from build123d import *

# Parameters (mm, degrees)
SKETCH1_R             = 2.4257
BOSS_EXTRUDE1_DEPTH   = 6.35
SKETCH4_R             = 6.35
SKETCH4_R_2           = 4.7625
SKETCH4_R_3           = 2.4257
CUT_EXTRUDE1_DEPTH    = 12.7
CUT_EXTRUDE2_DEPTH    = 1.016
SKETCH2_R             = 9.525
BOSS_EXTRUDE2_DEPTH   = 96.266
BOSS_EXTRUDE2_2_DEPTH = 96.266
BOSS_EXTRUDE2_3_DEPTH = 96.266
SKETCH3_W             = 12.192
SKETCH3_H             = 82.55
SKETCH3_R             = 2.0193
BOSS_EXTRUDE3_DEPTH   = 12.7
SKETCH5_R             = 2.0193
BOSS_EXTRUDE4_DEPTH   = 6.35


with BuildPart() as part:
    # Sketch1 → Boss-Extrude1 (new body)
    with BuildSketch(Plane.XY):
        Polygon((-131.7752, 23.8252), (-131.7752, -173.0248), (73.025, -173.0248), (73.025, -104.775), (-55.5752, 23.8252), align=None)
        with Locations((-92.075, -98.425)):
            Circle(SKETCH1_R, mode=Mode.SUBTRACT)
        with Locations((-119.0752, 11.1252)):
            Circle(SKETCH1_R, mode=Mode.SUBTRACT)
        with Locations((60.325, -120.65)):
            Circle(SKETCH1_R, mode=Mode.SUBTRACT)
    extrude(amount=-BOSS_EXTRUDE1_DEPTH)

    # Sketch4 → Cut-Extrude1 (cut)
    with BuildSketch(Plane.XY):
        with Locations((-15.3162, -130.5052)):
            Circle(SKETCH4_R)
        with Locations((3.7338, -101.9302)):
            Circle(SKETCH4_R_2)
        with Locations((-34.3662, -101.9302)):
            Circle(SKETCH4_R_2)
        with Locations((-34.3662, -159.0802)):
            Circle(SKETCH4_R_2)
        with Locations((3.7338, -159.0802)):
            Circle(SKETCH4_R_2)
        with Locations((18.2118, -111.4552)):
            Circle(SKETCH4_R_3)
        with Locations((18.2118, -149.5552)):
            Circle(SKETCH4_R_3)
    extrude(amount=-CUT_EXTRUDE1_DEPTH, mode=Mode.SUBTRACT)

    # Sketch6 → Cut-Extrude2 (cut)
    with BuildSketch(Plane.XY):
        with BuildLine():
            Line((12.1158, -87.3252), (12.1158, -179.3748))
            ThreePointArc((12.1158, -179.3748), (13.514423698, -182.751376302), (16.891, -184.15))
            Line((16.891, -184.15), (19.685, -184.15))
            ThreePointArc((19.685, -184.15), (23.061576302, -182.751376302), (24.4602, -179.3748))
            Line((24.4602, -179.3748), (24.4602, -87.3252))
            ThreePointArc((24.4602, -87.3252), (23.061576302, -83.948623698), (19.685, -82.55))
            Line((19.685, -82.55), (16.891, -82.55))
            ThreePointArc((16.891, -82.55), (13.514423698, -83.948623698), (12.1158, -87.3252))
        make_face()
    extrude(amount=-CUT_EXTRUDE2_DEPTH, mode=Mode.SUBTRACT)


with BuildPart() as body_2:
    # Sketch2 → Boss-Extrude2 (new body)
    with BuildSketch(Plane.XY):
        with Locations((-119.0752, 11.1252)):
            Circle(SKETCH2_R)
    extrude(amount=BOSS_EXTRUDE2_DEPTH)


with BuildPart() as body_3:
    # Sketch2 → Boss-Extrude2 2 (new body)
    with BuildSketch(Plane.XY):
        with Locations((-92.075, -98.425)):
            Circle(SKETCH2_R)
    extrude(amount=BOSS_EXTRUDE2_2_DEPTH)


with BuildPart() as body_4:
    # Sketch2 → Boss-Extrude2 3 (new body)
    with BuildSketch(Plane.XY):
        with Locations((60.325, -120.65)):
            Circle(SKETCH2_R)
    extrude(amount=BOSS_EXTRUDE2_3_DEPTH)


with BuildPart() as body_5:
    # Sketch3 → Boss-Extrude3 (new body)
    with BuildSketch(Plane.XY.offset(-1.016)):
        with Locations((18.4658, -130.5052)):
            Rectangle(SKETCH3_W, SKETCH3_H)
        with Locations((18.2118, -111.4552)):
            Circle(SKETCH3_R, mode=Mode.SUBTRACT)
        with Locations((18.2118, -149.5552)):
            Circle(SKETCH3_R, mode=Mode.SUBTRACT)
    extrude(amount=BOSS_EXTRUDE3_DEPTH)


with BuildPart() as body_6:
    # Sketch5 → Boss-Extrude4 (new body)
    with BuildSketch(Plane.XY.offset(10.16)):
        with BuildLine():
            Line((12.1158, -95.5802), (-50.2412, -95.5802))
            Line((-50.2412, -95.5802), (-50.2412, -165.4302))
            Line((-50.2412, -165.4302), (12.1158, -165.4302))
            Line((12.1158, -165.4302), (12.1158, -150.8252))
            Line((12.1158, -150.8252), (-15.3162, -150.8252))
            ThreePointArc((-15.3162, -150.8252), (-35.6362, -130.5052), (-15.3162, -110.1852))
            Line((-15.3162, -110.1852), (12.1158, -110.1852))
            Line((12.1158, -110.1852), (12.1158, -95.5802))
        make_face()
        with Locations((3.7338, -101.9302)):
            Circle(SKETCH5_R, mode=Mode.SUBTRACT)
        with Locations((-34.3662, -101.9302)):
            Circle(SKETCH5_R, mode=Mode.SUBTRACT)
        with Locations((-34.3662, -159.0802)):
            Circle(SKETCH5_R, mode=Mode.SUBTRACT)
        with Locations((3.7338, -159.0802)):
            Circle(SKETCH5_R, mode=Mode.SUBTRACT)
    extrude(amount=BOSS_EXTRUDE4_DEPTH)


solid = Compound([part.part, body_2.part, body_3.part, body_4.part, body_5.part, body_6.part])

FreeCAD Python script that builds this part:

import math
import FreeCAD as App
import Part
import Sketcher
from FreeCAD import Vector
Q = App.Units.Quantity

doc = App.newDocument("Part")
body = doc.addObject("PartDesign::Body", "Body")

# Sketch on XY plane
sketch1 = body.newObject("Sketcher::SketchObject", "Sketch")
sketch1.AttachmentSupport = (doc.getObject("XY_Plane"), [""])
sketch1.MapMode = "FlatFace"
sketch1.addGeometry(Part.LineSegment(Vector(-131.8, 23.8, 0), Vector(-131.8, -173, 0)), False)
sketch1.addGeometry(Part.LineSegment(Vector(-131.8, -173, 0), Vector(73, -173, 0)), False)
sketch1.addGeometry(Part.LineSegment(Vector(73, -173, 0), Vector(73, -104.8, 0)), False)
sketch1.addGeometry(Part.LineSegment(Vector(73, -104.8, 0), Vector(-55.6, 23.8, 0)), False)
sketch1.addGeometry(Part.LineSegment(Vector(-55.6, 23.8, 0), Vector(-131.8, 23.8, 0)), False)
sketch1.addGeometry(Part.Circle(Vector(-92.1, -98.4, 0), Vector(0, 0, 1), 2.4), False)
sketch1.addGeometry(Part.Circle(Vector(60.3, -120.7, 0), Vector(0, 0, 1), 2.4), False)
sketch1.addGeometry(Part.Circle(Vector(-119.1, 11.1, 0), Vector(0, 0, 1), 2.4), False)
sketch1.addConstraint(Sketcher.Constraint("Coincident", 0, 2, 1, 1))
sketch1.addConstraint(Sketcher.Constraint("Coincident", 1, 2, 2, 1))
sketch1.addConstraint(Sketcher.Constraint("Coincident", 2, 2, 3, 1))
sketch1.addConstraint(Sketcher.Constraint("Coincident", 3, 2, 4, 1))
sketch1.addConstraint(Sketcher.Constraint("Coincident", 4, 2, 0, 1))
sketch1.addConstraint(Sketcher.Constraint("Vertical", 0))
sketch1.addConstraint(Sketcher.Constraint("Horizontal", 1))
sketch1.addConstraint(Sketcher.Constraint("Vertical", 2))
sketch1.addConstraint(Sketcher.Constraint("Horizontal", 4))
sketch1.addConstraint(Sketcher.Constraint("Equal", 5, 6))
sketch1.addConstraint(Sketcher.Constraint("Equal", 6, 7))
sketch1.addConstraint(Sketcher.Constraint("DistanceX", 4, 2, 4, 1, Q("3 in")))
sketch1.addConstraint(Sketcher.Constraint("Diameter", 5, Q("0.191 in")))
sketch1.addConstraint(Sketcher.Constraint("Angle", 3, Q("135 deg")))
sketch1.addConstraint(Sketcher.Constraint("DistanceX", 5, 3, 6, 3, Q("6 in")))
sketch1.addConstraint(Sketcher.Constraint("DistanceY", 0, 2, 0, 1, Q("7.75 in")))
sketch1.addConstraint(Sketcher.Constraint("DistanceX", 0, 2, 7, 3, Q("0.5 in")))
sketch1.addConstraint(Sketcher.Constraint("DistanceX", 6, 3, 1, 2, Q("0.5 in")))
sketch1.addConstraint(Sketcher.Constraint("DistanceY", 7, 3, 3, 2, Q("0.5 in")))
sketch1.addConstraint(Sketcher.Constraint("DistanceX", 1, 1, 1, 2, Q("8.063 in")))
sketch1.addConstraint(Sketcher.Constraint("DistanceY", 6, 3, -1, 1, Q("4.75 in")))
sketch1.addConstraint(Sketcher.Constraint("DistanceY", 2, 2, 5, 3, Q("0.25 in")))
sketch1.addConstraint(Sketcher.Constraint("DistanceX", 5, 3, -1, 1, Q("3.625 in")))
sketch1.addConstraint(Sketcher.Constraint("DistanceY", 5, 3, -1, 1, Q("3.875 in")))
pad1 = body.newObject("PartDesign::Pad", "Pad")
pad1.Profile = sketch1
pad1.Length = Q("0.25 in")
pad1.Reversed = True

# Sketch on XY plane
sketch2 = body.newObject("Sketcher::SketchObject", "Sketch001")
sketch2.AttachmentSupport = (doc.getObject("XY_Plane"), [""])
sketch2.MapMode = "FlatFace"
sketch2.addGeometry(Part.Circle(Vector(-15.3, -130.5, 0), Vector(0, 0, 1), 6.3), False)
sketch2.addGeometry(Part.Circle(Vector(3.7, -101.9, 0), Vector(0, 0, 1), 4.8), False)
sketch2.addGeometry(Part.Circle(Vector(-34.4, -101.9, 0), Vector(0, 0, 1), 4.8), False)
sketch2.addGeometry(Part.Circle(Vector(-34.4, -159.1, 0), Vector(0, 0, 1), 4.8), False)
sketch2.addGeometry(Part.Circle(Vector(3.7, -159.1, 0), Vector(0, 0, 1), 4.8), False)
sketch2.addGeometry(Part.Circle(Vector(18.2, -111.5, 0), Vector(0, 0, 1), 2.4), False)
sketch2.addGeometry(Part.Circle(Vector(18.2, -149.6, 0), Vector(0, 0, 1), 2.4), False)
sketch2.addConstraint(Sketcher.Constraint("Equal", 1, 2))
sketch2.addConstraint(Sketcher.Constraint("Equal", 2, 3))
sketch2.addConstraint(Sketcher.Constraint("Equal", 3, 4))
sketch2.addConstraint(Sketcher.Constraint("Equal", 5, 6))
sketch2.addConstraint(Sketcher.Constraint("Horizontal", 1, 3, 2, 3))
sketch2.addConstraint(Sketcher.Constraint("Horizontal", 3, 3, 4, 3))
sketch2.addConstraint(Sketcher.Constraint("Vertical", 2, 3, 3, 3))
sketch2.addConstraint(Sketcher.Constraint("Vertical", 1, 3, 4, 3))
sketch2.addConstraint(Sketcher.Constraint("Vertical", 5, 3, 6, 3))
sketch2.addConstraint(Sketcher.Constraint("Diameter", 0, Q("0.5 in")))
sketch2.addConstraint(Sketcher.Constraint("Diameter", 1, Q("0.375 in")))
sketch2.addConstraint(Sketcher.Constraint("Diameter", 5, Q("0.191 in")))
sketch2.addConstraint(Sketcher.Constraint("DistanceX", 2, 3, 1, 3, Q("1.5 in")))
sketch2.addConstraint(Sketcher.Constraint("DistanceY", 6, 3, 5, 3, Q("1.5 in")))
sketch2.addConstraint(Sketcher.Constraint("DistanceX", 0, 3, 1, 3, Q("0.75 in")))
sketch2.addConstraint(Sketcher.Constraint("DistanceY", 3, 3, 2, 3, Q("2.25 in")))
sketch2.addConstraint(Sketcher.Constraint("DistanceX", 1, 3, 5, 3, Q("0.57 in")))
sketch2.addConstraint(Sketcher.Constraint("DistanceY", 0, 3, 5, 3, Q("0.75 in")))
sketch2.addConstraint(Sketcher.Constraint("DistanceX", 0, 3, -1, 1, Q("0.603 in")))
sketch2.addConstraint(Sketcher.Constraint("DistanceY", 0, 3, -1, 1, Q("5.138 in")))
sketch2.addConstraint(Sketcher.Constraint("DistanceY", 1, 3, -1, 1, Q("4.013 in")))
pocket1 = body.newObject("PartDesign::Pocket", "Pocket")
pocket1.Profile = sketch2
pocket1.Length = Q("0.5 in")

# Sketch on XY plane
sketch3 = body.newObject("Sketcher::SketchObject", "Sketch002")
sketch3.AttachmentSupport = (doc.getObject("XY_Plane"), [""])
sketch3.MapMode = "FlatFace"
sketch3.addGeometry(Part.LineSegment(Vector(12.1, -87.3, 0), Vector(12.1, -179.4, 0)), False)
sketch3.addGeometry(Part.ArcOfCircle(Part.Circle(Vector(16.9, -179.4, 0), Vector(0, 0, 1), 4.8), math.radians(180), math.radians(270)), False)
sketch3.addGeometry(Part.LineSegment(Vector(16.9, -184.2, 0), Vector(19.7, -184.2, 0)), False)
sketch3.addGeometry(Part.ArcOfCircle(Part.Circle(Vector(19.7, -179.4, 0), Vector(0, 0, 1), 4.8), math.radians(-90), math.radians(0)), False)
sketch3.addGeometry(Part.LineSegment(Vector(24.5, -179.4, 0), Vector(24.5, -87.3, 0)), False)
sketch3.addGeometry(Part.ArcOfCircle(Part.Circle(Vector(19.7, -87.3, 0), Vector(0, 0, 1), 4.8), math.radians(0), math.radians(90)), False)
sketch3.addGeometry(Part.LineSegment(Vector(19.7, -82.5, 0), Vector(16.9, -82.5, 0)), False)
sketch3.addGeometry(Part.ArcOfCircle(Part.Circle(Vector(16.9, -87.3, 0), Vector(0, 0, 1), 4.8), math.radians(90), math.radians(180)), False)
sketch3.addConstraint(Sketcher.Constraint("Tangent", 0, 2, 1, 1))
sketch3.addConstraint(Sketcher.Constraint("Tangent", 1, 2, 2, 1))
sketch3.addConstraint(Sketcher.Constraint("Tangent", 2, 2, 3, 1))
sketch3.addConstraint(Sketcher.Constraint("Tangent", 3, 2, 4, 1))
sketch3.addConstraint(Sketcher.Constraint("Tangent", 4, 2, 5, 1))
sketch3.addConstraint(Sketcher.Constraint("Tangent", 5, 2, 6, 1))
sketch3.addConstraint(Sketcher.Constraint("Tangent", 6, 2, 7, 1))
sketch3.addConstraint(Sketcher.Constraint("Tangent", 7, 2, 0, 1))
sketch3.addConstraint(Sketcher.Constraint("Vertical", 0))
sketch3.addConstraint(Sketcher.Constraint("Horizontal", 2))
sketch3.addConstraint(Sketcher.Constraint("Vertical", 4))
sketch3.addConstraint(Sketcher.Constraint("Horizontal", 6))
sketch3.addConstraint(Sketcher.Constraint("Equal", 1, 3))
sketch3.addConstraint(Sketcher.Constraint("Equal", 3, 5))
sketch3.addConstraint(Sketcher.Constraint("Equal", 5, 7))
sketch3.addConstraint(Sketcher.Constraint("Radius", 1, Q("0.188 in")))
sketch3.addConstraint(Sketcher.Constraint("DistanceX", 2, 1, 2, 2, Q("0.11 in")))
sketch3.addConstraint(Sketcher.Constraint("DistanceY", 0, 2, 0, 1, Q("3.624 in")))
sketch3.addConstraint(Sketcher.Constraint("DistanceY", 1, 2, -1, 1, Q("7.25 in")))
sketch3.addConstraint(Sketcher.Constraint("DistanceX", -1, 1, 1, 3, Q("0.665 in")))
pocket2 = body.newObject("PartDesign::Pocket", "Pocket001")
pocket2.Profile = sketch3
pocket2.Length = Q("0.04 in")
body2 = doc.addObject("PartDesign::Body", "Body001")

# Sketch on XY plane
sketch4 = body2.newObject("Sketcher::SketchObject", "Sketch003")
sketch4.AttachmentSupport = (doc.getObject("XY_Plane001"), [""])
sketch4.MapMode = "FlatFace"
sketch4.addGeometry(Part.Circle(Vector(-119, 11, 0), Vector(0, 0, 1), 10), False)
sketch4.addConstraint(Sketcher.Constraint("Diameter", 0, Q("0.75 in")))
sketch4.addConstraint(Sketcher.Constraint("DistanceX", 0, 3, -1, 1, Q("4.688 in")))
sketch4.addConstraint(Sketcher.Constraint("DistanceY", -1, 1, 0, 3, Q("0.438 in")))
pad2 = body2.newObject("PartDesign::Pad", "Pad001")
pad2.Profile = sketch4
pad2.Length = Q("3.79 in")
body3 = doc.addObject("PartDesign::Body", "Body002")

# Sketch on XY plane
sketch5 = body3.newObject("Sketcher::SketchObject", "Sketch004")
sketch5.AttachmentSupport = (doc.getObject("XY_Plane002"), [""])
sketch5.MapMode = "FlatFace"
sketch5.addGeometry(Part.Circle(Vector(-92, -98, 0), Vector(0, 0, 1), 10), False)
sketch5.addConstraint(Sketcher.Constraint("Diameter", 0, Q("0.75 in")))
sketch5.addConstraint(Sketcher.Constraint("DistanceX", 0, 3, -1, 1, Q("3.625 in")))
sketch5.addConstraint(Sketcher.Constraint("DistanceY", 0, 3, -1, 1, Q("3.875 in")))
pad3 = body3.newObject("PartDesign::Pad", "Pad002")
pad3.Profile = sketch5
pad3.Length = Q("3.79 in")
body4 = doc.addObject("PartDesign::Body", "Body003")

# Sketch on XY plane
sketch6 = body4.newObject("Sketcher::SketchObject", "Sketch005")
sketch6.AttachmentSupport = (doc.getObject("XY_Plane003"), [""])
sketch6.MapMode = "FlatFace"
sketch6.addGeometry(Part.Circle(Vector(60, -121, 0), Vector(0, 0, 1), 10), False)
sketch6.addConstraint(Sketcher.Constraint("Diameter", 0, Q("0.75 in")))
sketch6.addConstraint(Sketcher.Constraint("DistanceY", 0, 3, -1, 1, Q("4.75 in")))
sketch6.addConstraint(Sketcher.Constraint("DistanceX", -1, 1, 0, 3, Q("2.375 in")))
pad4 = body4.newObject("PartDesign::Pad", "Pad003")
pad4.Profile = sketch6
pad4.Length = Q("3.79 in")
body5 = doc.addObject("PartDesign::Body", "Body004")

# Sketch on XY plane
sketch7 = body5.newObject("Sketcher::SketchObject", "Sketch006")
sketch7.AttachmentSupport = (doc.getObject("XY_Plane004"), [""])
sketch7.MapMode = "FlatFace"
sketch7.AttachmentOffset = App.Placement(Vector(0, 0, -0.04 * 25.4), App.Rotation())
sketch7.addGeometry(Part.LineSegment(Vector(12.4, -89.2, 0), Vector(12.4, -171.8, 0)), False)
sketch7.addGeometry(Part.LineSegment(Vector(12.4, -171.8, 0), Vector(24.6, -171.8, 0)), False)
sketch7.addGeometry(Part.LineSegment(Vector(24.6, -171.8, 0), Vector(24.6, -89.2, 0)), False)
sketch7.addGeometry(Part.LineSegment(Vector(24.6, -89.2, 0), Vector(12.4, -89.2, 0)), False)
sketch7.addGeometry(Part.Circle(Vector(18.2, -149.6, 0), Vector(0, 0, 1), 2), False)
sketch7.addGeometry(Part.Circle(Vector(18.2, -111.5, 0), Vector(0, 0, 1), 2), False)
sketch7.addConstraint(Sketcher.Constraint("Coincident", 0, 2, 1, 1))
sketch7.addConstraint(Sketcher.Constraint("Coincident", 1, 2, 2, 1))
sketch7.addConstraint(Sketcher.Constraint("Coincident", 2, 2, 3, 1))
sketch7.addConstraint(Sketcher.Constraint("Coincident", 3, 2, 0, 1))
sketch7.addConstraint(Sketcher.Constraint("Vertical", 0))
sketch7.addConstraint(Sketcher.Constraint("Horizontal", 1))
sketch7.addConstraint(Sketcher.Constraint("Vertical", 2))
sketch7.addConstraint(Sketcher.Constraint("Horizontal", 3))
sketch7.addConstraint(Sketcher.Constraint("Equal", 4, 5))
sketch7.addConstraint(Sketcher.Constraint("Vertical", 4, 3, 5, 3))
sketch7.addConstraint(Sketcher.Constraint("Diameter", 4, Q("0.159 in")))
sketch7.addConstraint(Sketcher.Constraint("DistanceX", 1, 1, 1, 2, Q("0.48 in")))
sketch7.addConstraint(Sketcher.Constraint("DistanceY", 0, 2, 0, 1, Q("3.25 in")))
sketch7.addConstraint(Sketcher.Constraint("DistanceY", 4, 3, 5, 3, Q("1.5 in")))
sketch7.addConstraint(Sketcher.Constraint("DistanceX", 0, 2, 4, 3, Q("0.23 in")))
sketch7.addConstraint(Sketcher.Constraint("DistanceX", -1, 1, 4, 3, Q("0.717 in")))
sketch7.addConstraint(Sketcher.Constraint("DistanceY", 4, 3, -1, 1, Q("5.888 in")))
sketch7.addConstraint(Sketcher.Constraint("DistanceY", 0, 2, -1, 1, Q("6.763 in")))
pad5 = body5.newObject("PartDesign::Pad", "Pad004")
pad5.Profile = sketch7
pad5.Length = Q("0.5 in")
body6 = doc.addObject("PartDesign::Body", "Body005")

# Sketch on XY plane
sketch8 = body6.newObject("Sketcher::SketchObject", "Sketch007")
sketch8.AttachmentSupport = (doc.getObject("XY_Plane005"), [""])
sketch8.MapMode = "FlatFace"
sketch8.AttachmentOffset = App.Placement(Vector(0, 0, 0.4 * 25.4), App.Rotation())
sketch8.addGeometry(Part.LineSegment(Vector(12.1, -95.6, 0), Vector(-50.2, -95.6, 0)), False)
sketch8.addGeometry(Part.LineSegment(Vector(-50.2, -95.6, 0), Vector(-50.2, -165.4, 0)), False)
sketch8.addGeometry(Part.LineSegment(Vector(-50.2, -165.4, 0), Vector(12.1, -165.4, 0)), False)
sketch8.addGeometry(Part.LineSegment(Vector(12.1, -165.4, 0), Vector(12.1, -150.8, 0)), False)
sketch8.addGeometry(Part.LineSegment(Vector(12.1, -150.8, 0), Vector(-15.3, -150.8, 0)), False)
sketch8.addGeometry(Part.ArcOfCircle(Part.Circle(Vector(-15.3, -130.5, 0), Vector(0, 0, 1), 20.3), math.radians(90), math.radians(270)), False)
sketch8.addGeometry(Part.LineSegment(Vector(-15.3, -110.2, 0), Vector(12.1, -110.2, 0)), False)
sketch8.addGeometry(Part.LineSegment(Vector(12.1, -110.2, 0), Vector(12.1, -95.6, 0)), False)
sketch8.addGeometry(Part.Circle(Vector(-34.4, -159.1, 0), Vector(0, 0, 1), 2), False)
sketch8.addGeometry(Part.Circle(Vector(3.7, -159.1, 0), Vector(0, 0, 1), 2), False)
sketch8.addGeometry(Part.Circle(Vector(-34.4, -101.9, 0), Vector(0, 0, 1), 2), False)
sketch8.addGeometry(Part.Circle(Vector(3.7, -101.9, 0), Vector(0, 0, 1), 2), False)
sketch8.addConstraint(Sketcher.Constraint("Coincident", 0, 2, 1, 1))
sketch8.addConstraint(Sketcher.Constraint("Coincident", 1, 2, 2, 1))
sketch8.addConstraint(Sketcher.Constraint("Coincident", 2, 2, 3, 1))
sketch8.addConstraint(Sketcher.Constraint("Coincident", 3, 2, 4, 1))
sketch8.addConstraint(Sketcher.Constraint("Tangent", 4, 2, 5, 2))
sketch8.addConstraint(Sketcher.Constraint("Tangent", 5, 1, 6, 1))
sketch8.addConstraint(Sketcher.Constraint("Coincident", 6, 2, 7, 1))
sketch8.addConstraint(Sketcher.Constraint("Coincident", 7, 2, 0, 1))
sketch8.addConstraint(Sketcher.Constraint("Horizontal", 0))
sketch8.addConstraint(Sketcher.Constraint("Vertical", 1))
sketch8.addConstraint(Sketcher.Constraint("Horizontal", 2))
sketch8.addConstraint(Sketcher.Constraint("Vertical", 3))
sketch8.addConstraint(Sketcher.Constraint("Horizontal", 4))
sketch8.addConstraint(Sketcher.Constraint("Horizontal", 6))
sketch8.addConstraint(Sketcher.Constraint("Vertical", 7))
sketch8.addConstraint(Sketcher.Constraint("Equal", 8, 9))
sketch8.addConstraint(Sketcher.Constraint("Equal", 9, 10))
sketch8.addConstraint(Sketcher.Constraint("Equal", 10, 11))
sketch8.addConstraint(Sketcher.Constraint("Horizontal", 8, 3, 9, 3))
sketch8.addConstraint(Sketcher.Constraint("Horizontal", 10, 3, 11, 3))
sketch8.addConstraint(Sketcher.Constraint("Vertical", 8, 3, 10, 3))
sketch8.addConstraint(Sketcher.Constraint("Vertical", 9, 3, 11, 3))
sketch8.addConstraint(Sketcher.Constraint("Vertical", 3, 2, 6, 2))
sketch8.addConstraint(Sketcher.Constraint("Equal", 3, 7))
sketch8.addConstraint(Sketcher.Constraint("Radius", 5, Q("0.8 in")))
sketch8.addConstraint(Sketcher.Constraint("Diameter", 8, Q("0.159 in")))
sketch8.addConstraint(Sketcher.Constraint("DistanceX", 4, 2, 4, 1, Q("1.08 in")))
sketch8.addConstraint(Sketcher.Constraint("DistanceY", 1, 2, 1, 1, Q("2.75 in")))
sketch8.addConstraint(Sketcher.Constraint("DistanceX", 8, 3, 9, 3, Q("1.5 in")))
sketch8.addConstraint(Sketcher.Constraint("DistanceY", 8, 3, 0, 2, Q("2.5 in")))
sketch8.addConstraint(Sketcher.Constraint("DistanceY", 1, 2, 10, 3, Q("2.5 in")))
sketch8.addConstraint(Sketcher.Constraint("DistanceX", 0, 2, 0, 1, Q("2.455 in")))
sketch8.addConstraint(Sketcher.Constraint("DistanceX", 8, 3, 5, 3, Q("0.75 in")))
sketch8.addConstraint(Sketcher.Constraint("DistanceX", 5, 3, -1, 1, Q("0.603 in")))
sketch8.addConstraint(Sketcher.Constraint("DistanceY", 5, 3, -1, 1, Q("5.138 in")))
pad6 = body6.newObject("PartDesign::Pad", "Pad005")
pad6.Profile = sketch8
pad6.Length = Q("0.25 in")

doc.recompute()
